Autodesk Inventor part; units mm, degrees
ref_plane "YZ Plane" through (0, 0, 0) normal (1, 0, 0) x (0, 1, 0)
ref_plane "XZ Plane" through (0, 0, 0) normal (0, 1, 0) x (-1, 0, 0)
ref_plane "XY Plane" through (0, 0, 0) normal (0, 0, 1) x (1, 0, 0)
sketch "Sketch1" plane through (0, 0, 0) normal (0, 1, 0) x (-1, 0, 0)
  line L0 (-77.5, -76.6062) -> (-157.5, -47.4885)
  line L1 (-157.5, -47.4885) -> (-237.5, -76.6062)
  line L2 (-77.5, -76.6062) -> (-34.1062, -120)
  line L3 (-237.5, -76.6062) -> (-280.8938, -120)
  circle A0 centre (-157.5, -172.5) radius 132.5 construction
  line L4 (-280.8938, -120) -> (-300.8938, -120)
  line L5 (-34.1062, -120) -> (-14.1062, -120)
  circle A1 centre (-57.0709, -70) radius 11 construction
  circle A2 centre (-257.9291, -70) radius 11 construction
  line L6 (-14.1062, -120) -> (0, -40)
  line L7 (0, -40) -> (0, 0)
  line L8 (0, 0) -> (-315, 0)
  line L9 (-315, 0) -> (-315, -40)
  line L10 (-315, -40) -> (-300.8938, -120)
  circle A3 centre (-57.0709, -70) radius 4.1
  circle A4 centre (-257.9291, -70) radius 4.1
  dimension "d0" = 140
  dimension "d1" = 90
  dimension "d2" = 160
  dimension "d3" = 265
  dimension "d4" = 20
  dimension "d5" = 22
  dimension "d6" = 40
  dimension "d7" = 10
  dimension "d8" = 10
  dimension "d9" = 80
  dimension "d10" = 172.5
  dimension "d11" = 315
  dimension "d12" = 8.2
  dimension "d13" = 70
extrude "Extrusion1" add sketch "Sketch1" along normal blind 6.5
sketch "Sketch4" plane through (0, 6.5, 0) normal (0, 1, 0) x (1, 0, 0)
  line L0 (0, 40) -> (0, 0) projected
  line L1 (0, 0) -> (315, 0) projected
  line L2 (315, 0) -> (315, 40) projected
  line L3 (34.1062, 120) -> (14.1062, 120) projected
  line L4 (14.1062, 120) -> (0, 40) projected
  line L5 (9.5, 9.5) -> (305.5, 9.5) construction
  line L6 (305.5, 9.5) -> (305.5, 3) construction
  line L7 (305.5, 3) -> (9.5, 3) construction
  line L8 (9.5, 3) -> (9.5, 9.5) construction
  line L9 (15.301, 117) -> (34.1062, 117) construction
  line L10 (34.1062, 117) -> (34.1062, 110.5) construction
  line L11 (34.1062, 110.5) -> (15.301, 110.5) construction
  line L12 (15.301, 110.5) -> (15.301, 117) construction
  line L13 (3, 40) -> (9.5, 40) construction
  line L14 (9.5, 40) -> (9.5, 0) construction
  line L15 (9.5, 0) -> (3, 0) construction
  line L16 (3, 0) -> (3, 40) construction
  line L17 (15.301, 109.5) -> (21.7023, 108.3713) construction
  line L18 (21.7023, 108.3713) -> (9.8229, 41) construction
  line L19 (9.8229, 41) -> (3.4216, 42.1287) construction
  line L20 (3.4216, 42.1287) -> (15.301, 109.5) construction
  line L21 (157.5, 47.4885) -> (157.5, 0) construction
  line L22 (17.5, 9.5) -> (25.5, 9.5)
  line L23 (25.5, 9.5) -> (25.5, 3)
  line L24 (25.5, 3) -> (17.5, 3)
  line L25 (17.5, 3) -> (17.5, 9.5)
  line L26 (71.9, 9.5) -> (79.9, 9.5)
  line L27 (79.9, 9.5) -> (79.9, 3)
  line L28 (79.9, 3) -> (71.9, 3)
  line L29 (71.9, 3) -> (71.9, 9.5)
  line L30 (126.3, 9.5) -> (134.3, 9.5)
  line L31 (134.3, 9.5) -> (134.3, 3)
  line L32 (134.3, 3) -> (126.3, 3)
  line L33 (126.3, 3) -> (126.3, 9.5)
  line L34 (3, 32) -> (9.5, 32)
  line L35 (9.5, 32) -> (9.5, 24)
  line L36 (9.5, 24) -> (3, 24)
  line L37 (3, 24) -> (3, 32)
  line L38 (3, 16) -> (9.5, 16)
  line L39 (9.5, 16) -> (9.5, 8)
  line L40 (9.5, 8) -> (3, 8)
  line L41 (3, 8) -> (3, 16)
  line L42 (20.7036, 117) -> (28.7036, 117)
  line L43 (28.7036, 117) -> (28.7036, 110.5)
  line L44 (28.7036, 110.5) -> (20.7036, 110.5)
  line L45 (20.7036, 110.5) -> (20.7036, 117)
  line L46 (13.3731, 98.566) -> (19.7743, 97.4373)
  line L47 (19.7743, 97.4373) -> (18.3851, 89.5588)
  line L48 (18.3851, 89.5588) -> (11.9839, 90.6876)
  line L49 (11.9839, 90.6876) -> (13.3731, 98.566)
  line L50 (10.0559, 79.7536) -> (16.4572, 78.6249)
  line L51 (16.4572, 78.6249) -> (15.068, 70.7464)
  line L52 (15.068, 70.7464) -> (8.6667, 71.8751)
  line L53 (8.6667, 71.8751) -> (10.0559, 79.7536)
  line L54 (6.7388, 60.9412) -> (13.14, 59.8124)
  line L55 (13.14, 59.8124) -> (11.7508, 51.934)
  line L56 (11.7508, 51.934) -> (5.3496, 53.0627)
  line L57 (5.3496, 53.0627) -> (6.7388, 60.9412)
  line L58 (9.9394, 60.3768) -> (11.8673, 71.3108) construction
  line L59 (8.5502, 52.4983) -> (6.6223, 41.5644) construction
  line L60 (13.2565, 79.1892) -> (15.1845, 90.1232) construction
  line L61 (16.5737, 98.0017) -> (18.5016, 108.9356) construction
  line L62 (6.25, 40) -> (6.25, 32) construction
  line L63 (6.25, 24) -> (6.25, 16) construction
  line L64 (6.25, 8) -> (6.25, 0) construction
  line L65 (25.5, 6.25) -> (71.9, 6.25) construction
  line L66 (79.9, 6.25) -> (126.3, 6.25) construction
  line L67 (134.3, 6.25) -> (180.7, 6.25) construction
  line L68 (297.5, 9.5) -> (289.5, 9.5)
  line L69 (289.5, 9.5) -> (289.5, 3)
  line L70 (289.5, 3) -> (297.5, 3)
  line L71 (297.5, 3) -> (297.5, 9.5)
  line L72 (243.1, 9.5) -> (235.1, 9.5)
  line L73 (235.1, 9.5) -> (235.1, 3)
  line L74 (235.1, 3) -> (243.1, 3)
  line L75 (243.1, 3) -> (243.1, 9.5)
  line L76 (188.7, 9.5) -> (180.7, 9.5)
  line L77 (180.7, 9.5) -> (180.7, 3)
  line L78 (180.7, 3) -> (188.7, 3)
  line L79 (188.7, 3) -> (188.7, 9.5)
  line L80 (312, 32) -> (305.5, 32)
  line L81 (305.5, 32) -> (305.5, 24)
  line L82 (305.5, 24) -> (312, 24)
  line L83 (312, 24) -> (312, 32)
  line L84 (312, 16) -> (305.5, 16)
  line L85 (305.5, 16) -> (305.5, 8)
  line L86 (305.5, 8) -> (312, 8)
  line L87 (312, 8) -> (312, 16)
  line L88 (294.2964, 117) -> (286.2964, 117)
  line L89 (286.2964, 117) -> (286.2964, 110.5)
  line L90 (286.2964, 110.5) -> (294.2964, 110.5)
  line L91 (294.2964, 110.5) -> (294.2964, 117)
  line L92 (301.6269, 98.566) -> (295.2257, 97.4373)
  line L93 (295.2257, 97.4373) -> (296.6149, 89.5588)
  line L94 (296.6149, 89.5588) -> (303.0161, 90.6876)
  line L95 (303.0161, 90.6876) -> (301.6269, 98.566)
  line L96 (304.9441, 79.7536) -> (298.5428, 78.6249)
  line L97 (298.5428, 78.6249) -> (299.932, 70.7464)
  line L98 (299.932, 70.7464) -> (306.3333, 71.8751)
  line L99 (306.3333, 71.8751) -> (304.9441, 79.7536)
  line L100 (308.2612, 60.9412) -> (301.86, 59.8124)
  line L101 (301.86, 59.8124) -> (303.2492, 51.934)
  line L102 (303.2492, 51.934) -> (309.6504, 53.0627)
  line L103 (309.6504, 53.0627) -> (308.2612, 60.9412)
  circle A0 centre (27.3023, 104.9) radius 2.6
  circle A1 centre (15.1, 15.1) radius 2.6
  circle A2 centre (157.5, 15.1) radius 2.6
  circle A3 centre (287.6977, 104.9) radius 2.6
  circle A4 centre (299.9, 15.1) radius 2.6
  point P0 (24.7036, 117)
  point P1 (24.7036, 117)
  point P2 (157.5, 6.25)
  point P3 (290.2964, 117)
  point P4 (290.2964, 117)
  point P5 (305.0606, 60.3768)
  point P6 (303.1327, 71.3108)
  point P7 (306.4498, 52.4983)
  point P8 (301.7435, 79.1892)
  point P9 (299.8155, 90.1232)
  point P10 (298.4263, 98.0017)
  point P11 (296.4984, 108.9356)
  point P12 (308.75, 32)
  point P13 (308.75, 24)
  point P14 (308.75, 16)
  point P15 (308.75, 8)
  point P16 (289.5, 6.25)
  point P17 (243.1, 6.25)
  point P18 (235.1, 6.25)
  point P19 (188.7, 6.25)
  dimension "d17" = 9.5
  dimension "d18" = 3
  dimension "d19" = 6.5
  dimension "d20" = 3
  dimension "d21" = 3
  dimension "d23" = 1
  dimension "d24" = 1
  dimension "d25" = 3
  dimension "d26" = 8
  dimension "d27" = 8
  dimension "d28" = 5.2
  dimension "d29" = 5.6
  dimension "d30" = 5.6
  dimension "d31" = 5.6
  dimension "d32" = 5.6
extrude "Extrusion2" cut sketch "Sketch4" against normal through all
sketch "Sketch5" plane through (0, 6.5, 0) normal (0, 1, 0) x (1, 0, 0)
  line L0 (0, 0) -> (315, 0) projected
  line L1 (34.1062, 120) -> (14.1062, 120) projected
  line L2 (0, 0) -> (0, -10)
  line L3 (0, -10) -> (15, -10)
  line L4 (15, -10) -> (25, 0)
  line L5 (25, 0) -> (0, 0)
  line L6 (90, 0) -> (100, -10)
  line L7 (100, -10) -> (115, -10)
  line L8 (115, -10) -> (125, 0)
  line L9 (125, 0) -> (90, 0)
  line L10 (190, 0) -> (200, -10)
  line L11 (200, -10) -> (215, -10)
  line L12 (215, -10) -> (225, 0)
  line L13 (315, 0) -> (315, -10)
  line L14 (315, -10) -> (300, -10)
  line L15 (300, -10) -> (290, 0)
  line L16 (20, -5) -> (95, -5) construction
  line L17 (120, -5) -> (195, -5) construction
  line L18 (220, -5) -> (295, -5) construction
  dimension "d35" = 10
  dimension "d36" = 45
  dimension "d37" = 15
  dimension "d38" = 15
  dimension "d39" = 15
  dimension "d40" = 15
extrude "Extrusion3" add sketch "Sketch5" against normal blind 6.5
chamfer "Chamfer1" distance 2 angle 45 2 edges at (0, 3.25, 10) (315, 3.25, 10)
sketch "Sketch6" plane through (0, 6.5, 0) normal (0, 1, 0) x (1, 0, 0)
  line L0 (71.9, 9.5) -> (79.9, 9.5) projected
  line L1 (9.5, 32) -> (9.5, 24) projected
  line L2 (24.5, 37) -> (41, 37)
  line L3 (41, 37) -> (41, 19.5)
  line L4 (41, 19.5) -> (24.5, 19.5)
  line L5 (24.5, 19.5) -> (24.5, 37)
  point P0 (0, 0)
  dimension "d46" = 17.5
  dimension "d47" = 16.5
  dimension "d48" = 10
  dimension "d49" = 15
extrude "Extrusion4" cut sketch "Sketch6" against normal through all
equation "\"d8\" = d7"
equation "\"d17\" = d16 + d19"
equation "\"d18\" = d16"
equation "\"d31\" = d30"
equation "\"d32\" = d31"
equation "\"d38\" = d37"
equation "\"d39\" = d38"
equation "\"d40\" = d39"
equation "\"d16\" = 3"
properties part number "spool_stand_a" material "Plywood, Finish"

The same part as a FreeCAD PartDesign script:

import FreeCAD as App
import Part
import Sketcher

V = App.Vector
Q = App.Units.Quantity


def edges_at(feature, points):
    """Names of the edges that pass closest to the given points."""
    edges = feature.Shape.Edges
    near = lambda p: min(range(len(edges)), key=lambda i: edges[i].distToShape(Part.Vertex(*p))[0])
    return sorted({f"Edge{near(p) + 1}" for p in points})


def add_polygon(sketch, points):
    """Adds a closed chain of lines whose ends are joined by coincident constraints."""
    first, n = sketch.GeometryCount, len(points)
    for a, b in zip(points, points[1:] + points[:1]):
        sketch.addGeometry(Part.LineSegment(App.Vector(*a, 0), App.Vector(*b, 0)), False)
    for i in range(n):
        sketch.addConstraint(Sketcher.Constraint("Coincident", first + i, 2, first + (i + 1) % n, 1))

doc = App.newDocument("Part")
params = doc.addObject("Spreadsheet::Sheet", "Params")
for row, (alias, value) in enumerate([
    ("sketch1_diameter", "8.2 mm"),
    ("sketch1_width", "20 mm"),
    ("sketch1_width2", "315 mm"),
    ("sketch1_height", "40 mm"),
    ("pad1_length", "6.5 mm"),
    ("sketch2_diameter", "5.2 mm"),
    ("sketch2_width", "8 mm"),
    ("sketch2_length", "8 mm"),
    ("sketch2_width2", "6.5 mm"),
    ("sketch2_length2", "6.5 mm"),
    ("sketch3_width", "15 mm"),
    ("sketch3_height", "10 mm"),
    ("pad2_length", "6.5 mm"),
    ("chamfer_size", "2 mm"),
    ("sketch4_width", "16.5 mm"),
    ("sketch4_height", "17.5 mm"),
], start=1):
    params.set(f"A{row}", alias)
    params.set(f"B{row}", "=" + value)
    params.setAlias(f"B{row}", alias)

body = doc.addObject("PartDesign::Body", "Body")

# Sketch on XZ plane
sketch1 = body.newObject("Sketcher::SketchObject", "Sketch")
sketch1.AttachmentSupport = (doc.getObject("XZ_Plane"), [""])
sketch1.MapMode = "FlatFace"
add_polygon(sketch1, [(157.5, -47.5), (77.5, -76.6), (34.1, -120), (14.1, -120), (0, -40), (0, 0), (315, 0), (315, -40), (300.9, -120), (280.9, -120), (237.5, -76.6)])  # lines 0-10
sketch1.addGeometry(Part.Circle(V(257.9, -70, 0), V(0, 0, 1), 4.1), False)  # 11
sketch1.addGeometry(Part.Circle(V(57.1, -70, 0), V(0, 0, 1), 4.1), False)  # 12
sketch1.addConstraint([
    Sketcher.Constraint("Horizontal", 2),
    Sketcher.Constraint("Vertical", 4),
    Sketcher.Constraint("Horizontal", 5),
    Sketcher.Constraint("Vertical", 6),
    Sketcher.Constraint("Horizontal", 8),
    Sketcher.Constraint("Coincident", 4, 2, -1, 1),
    Sketcher.Constraint("Equal", 11, 12),
    Sketcher.Constraint("Perpendicular", 1, 9),
    Sketcher.Constraint("Horizontal", 11, 3, 12, 3),
    Sketcher.Constraint("Horizontal", 3, 2, 6, 2),
    Sketcher.Constraint("Horizontal", 2, 2, 7, 2),
    Sketcher.Constraint("Horizontal", 0, 2, 9, 2),
    Sketcher.Constraint("Equal", 2, 8),
    Sketcher.Constraint("Equal", 3, 7),
    Sketcher.Constraint("Equal", 1, 9),
    Sketcher.Constraint("Equal", 0, 10),
    Sketcher.Constraint("Diameter", 11, 8.2),
    Sketcher.Constraint("DistanceX", 2, 2, 2, 1, 20.0),
    Sketcher.Constraint("DistanceX", 5, 1, 5, 2, 315.0),
    Sketcher.Constraint("DistanceY", 4, 1, 4, 2, 40.0),
    Sketcher.Constraint("Angle", 0, Q("-160 deg")),
    Sketcher.Constraint("DistanceY", 11, 3, -1, 1, 70.0),
    Sketcher.Constraint("DistanceY", 2, 2, 3, 2, 80.0),
    Sketcher.Constraint("DistanceX", 0, 2, 10, 2, 80.0),
    Sketcher.Constraint("Angle", 3, Q("100 deg")),
    Sketcher.Constraint("DistanceX", -1, 1, 11, 3, 257.929),
    Sketcher.Constraint("DistanceX", -1, 1, 12, 3, 57.071),
])
sketch1.setExpression("Constraints[27]", "Params.sketch1_diameter")
sketch1.setExpression("Constraints[28]", "Params.sketch1_width")
sketch1.setExpression("Constraints[29]", "Params.sketch1_width2")
sketch1.setExpression("Constraints[30]", "Params.sketch1_height")
pad1 = body.newObject("PartDesign::Pad", "Pad")
pad1.Profile = sketch1
pad1.setExpression("Length", "Params.pad1_length")
pad1.Reversed = True

# Sketch on XZ plane
sketch2 = body.newObject("Sketcher::SketchObject", "Sketch001")
sketch2.AttachmentSupport = (doc.getObject("XZ_Plane"), [""])
sketch2.MapMode = "FlatFace"
sketch2.AttachmentOffset = App.Placement(V(0, 0, -6.5), App.Rotation())
add_polygon(sketch2, [(25.5, -9.5), (17.5, -9.5), (17.5, -3), (25.5, -3)])  # lines 0-3
add_polygon(sketch2, [(79.9, -9.5), (71.9, -9.5), (71.9, -3), (79.9, -3)])  # lines 4-7
add_polygon(sketch2, [(134.3, -9.5), (126.3, -9.5), (126.3, -3), (134.3, -3)])  # lines 8-11
add_polygon(sketch2, [(9.5, -32), (3, -32), (3, -24), (9.5, -24)])  # lines 12-15
add_polygon(sketch2, [(9.5, -16), (3, -16), (3, -8), (9.5, -8)])  # lines 16-19
add_polygon(sketch2, [(28.7, -117), (20.7, -117), (20.7, -110.5), (28.7, -110.5)])  # lines 20-23
add_polygon(sketch2, [(19.8, -97.4), (13.4, -98.6), (12, -90.7), (18.4, -89.6)])  # lines 24-27
add_polygon(sketch2, [(16.5, -78.6), (10.1, -79.8), (8.7, -71.9), (15.1, -70.7)])  # lines 28-31
add_polygon(sketch2, [(13.1, -59.8), (6.7, -60.9), (5.3, -53.1), (11.8, -51.9)])  # lines 32-35
add_polygon(sketch2, [(297.5, -3), (297.5, -9.5), (289.5, -9.5), (289.5, -3)])  # lines 36-39
add_polygon(sketch2, [(243.1, -3), (243.1, -9.5), (235.1, -9.5), (235.1, -3)])  # lines 40-43
add_polygon(sketch2, [(188.7, -3), (188.7, -9.5), (180.7, -9.5), (180.7, -3)])  # lines 44-47
add_polygon(sketch2, [(312, -24), (312, -32), (305.5, -32), (305.5, -24)])  # lines 48-51
add_polygon(sketch2, [(312, -8), (312, -16), (305.5, -16), (305.5, -8)])  # lines 52-55
add_polygon(sketch2, [(294.3, -110.5), (294.3, -117), (286.3, -117), (286.3, -110.5)])  # lines 56-59
add_polygon(sketch2, [(303, -90.7), (301.6, -98.6), (295.2, -97.4), (296.6, -89.6)])  # lines 60-63
add_polygon(sketch2, [(306.3, -71.9), (304.9, -79.8), (298.5, -78.6), (299.9, -70.7)])  # lines 64-67
add_polygon(sketch2, [(309.7, -53.1), (308.3, -60.9), (301.9, -59.8), (303.2, -51.9)])  # lines 68-71
sketch2.addGeometry(Part.Circle(V(27.3, -104.9, 0), V(0, 0, 1), 2.6), False)  # 72
sketch2.addGeometry(Part.Circle(V(15.1, -15.1, 0), V(0, 0, 1), 2.6), False)  # 73
sketch2.addGeometry(Part.Circle(V(157.5, -15.1, 0), V(0, 0, 1), 2.6), False)  # 74
sketch2.addGeometry(Part.Circle(V(287.7, -104.9, 0), V(0, 0, 1), 2.6), False)  # 75
sketch2.addGeometry(Part.Circle(V(299.9, -15.1, 0), V(0, 0, 1), 2.6), False)  # 76
sketch2.addConstraint([
    Sketcher.Constraint("Horizontal", 0),
    Sketcher.Constraint("Vertical", 1),
    Sketcher.Constraint("Horizontal", 2),
    Sketcher.Constraint("Vertical", 3),
    Sketcher.Constraint("Horizontal", 4),
    Sketcher.Constraint("Vertical", 5),
    Sketcher.Constraint("Horizontal", 6),
    Sketcher.Constraint("Vertical", 7),
    Sketcher.Constraint("Horizontal", 8),
    Sketcher.Constraint("Vertical", 9),
    Sketcher.Constraint("Horizontal", 10),
    Sketcher.Constraint("Vertical", 11),
    Sketcher.Constraint("Horizontal", 12),
    Sketcher.Constraint("Vertical", 13),
    Sketcher.Constraint("Horizontal", 14),
    Sketcher.Constraint("Vertical", 15),
    Sketcher.Constraint("Horizontal", 16),
    Sketcher.Constraint("Vertical", 17),
    Sketcher.Constraint("Horizontal", 18),
    Sketcher.Constraint("Vertical", 19),
    Sketcher.Constraint("Horizontal", 20),
    Sketcher.Constraint("Vertical", 21),
    Sketcher.Constraint("Horizontal", 22),
    Sketcher.Constraint("Vertical", 23),
    Sketcher.Constraint("Vertical", 36),
    Sketcher.Constraint("Horizontal", 37),
    Sketcher.Constraint("Vertical", 38),
    Sketcher.Constraint("Horizontal", 39),
    Sketcher.Constraint("Vertical", 40),
    Sketcher.Constraint("Horizontal", 41),
    Sketcher.Constraint("Vertical", 42),
    Sketcher.Constraint("Horizontal", 43),
    Sketcher.Constraint("Vertical", 44),
    Sketcher.Constraint("Horizontal", 45),
    Sketcher.Constraint("Vertical", 46),
    Sketcher.Constraint("Horizontal", 47),
    Sketcher.Constraint("Vertical", 48),
    Sketcher.Constraint("Horizontal", 49),
    Sketcher.Constraint("Vertical", 50),
    Sketcher.Constraint("Horizontal", 51),
    Sketcher.Constraint("Vertical", 52),
    Sketcher.Constraint("Horizontal", 53),
    Sketcher.Constraint("Vertical", 54),
    Sketcher.Constraint("Horizontal", 55),
    Sketcher.Constraint("Vertical", 56),
    Sketcher.Constraint("Horizontal", 57),
    Sketcher.Constraint("Vertical", 58),
    Sketcher.Constraint("Horizontal", 59),
    Sketcher.Constraint("Equal", 72, 73),
    Sketcher.Constraint("Equal", 73, 74),
    Sketcher.Constraint("Equal", 74, 75),
    Sketcher.Constraint("Equal", 75, 76),
    Sketcher.Constraint("Perpendicular", 24, 25),
    Sketcher.Constraint("Perpendicular", 25, 26),
    Sketcher.Constraint("Perpendicular", 26, 27),
    Sketcher.Constraint("Perpendicular", 27, 28),
    Sketcher.Constraint("Perpendicular", 28, 29),
    Sketcher.Constraint("Perpendicular", 29, 30),
    Sketcher.Constraint("Perpendicular", 30, 31),
    Sketcher.Constraint("Perpendicular", 31, 32),
    Sketcher.Constraint("Perpendicular", 32, 33),
    Sketcher.Constraint("Perpendicular", 33, 34),
    Sketcher.Constraint("Perpendicular", 34, 35),
    Sketcher.Constraint("Perpendicular", 60, 61),
    Sketcher.Constraint("Perpendicular", 61, 62),
    Sketcher.Constraint("Perpendicular", 62, 63),
    Sketcher.Constraint("Perpendicular", 63, 64),
    Sketcher.Constraint("Perpendicular", 64, 65),
    Sketcher.Constraint("Perpendicular", 65, 66),
    Sketcher.Constraint("Perpendicular", 66, 67),
    Sketcher.Constraint("Perpendicular", 67, 68),
    Sketcher.Constraint("Perpendicular", 68, 69),
    Sketcher.Constraint("Perpendicular", 69, 70),
    Sketcher.Constraint("Perpendicular", 70, 71),
    Sketcher.Constraint("Horizontal", 73, 3, 74, 3),
    Sketcher.Constraint("Horizontal", 72, 3, 75, 3),
    Sketcher.Constraint("Horizontal", 74, 3, 76, 3),
    Sketcher.Constraint("Horizontal", 3, 2, 4, 2),
    Sketcher.Constraint("Horizontal", 2, 2, 5, 2),
    Sketcher.Constraint("Horizontal", 7, 2, 8, 2),
    Sketcher.Constraint("Horizontal", 6, 2, 9, 2),
    Sketcher.Constraint("Horizontal", 11, 2, 36, 2),
    Sketcher.Constraint("Horizontal", 10, 2, 38, 2),
    Sketcher.Constraint("Horizontal", 37, 2, 40, 2),
    Sketcher.Constraint("Horizontal", 39, 2, 42, 2),
    Sketcher.Constraint("Horizontal", 41, 2, 44, 2),
    Sketcher.Constraint("Horizontal", 43, 2, 46, 2),
    Sketcher.Constraint("Horizontal", 15, 2, 48, 2),
    Sketcher.Constraint("Horizontal", 14, 2, 50, 2),
    Sketcher.Constraint("Horizontal", 19, 2, 52, 2),
    Sketcher.Constraint("Horizontal", 18, 2, 54, 2),
    Sketcher.Constraint("Horizontal", 23, 2, 56, 2),
    Sketcher.Constraint("Horizontal", 22, 2, 58, 2),
    Sketcher.Constraint("Horizontal", 24, 2, 60, 2),
    Sketcher.Constraint("Horizontal", 27, 2, 61, 2),
    Sketcher.Constraint("Horizontal", 26, 2, 62, 2),
    Sketcher.Constraint("Horizontal", 28, 2, 64, 2),
    Sketcher.Constraint("Horizontal", 31, 2, 65, 2),
    Sketcher.Constraint("Horizontal", 30, 2, 66, 2),
    Sketcher.Constraint("Horizontal", 32, 2, 68, 2),
    Sketcher.Constraint("Horizontal", 35, 2, 69, 2),
    Sketcher.Constraint("Horizontal", 34, 2, 70, 2),
    Sketcher.Constraint("Vertical", 13, 2, 16, 2),
    Sketcher.Constraint("Vertical", 15, 2, 18, 2),
    Sketcher.Constraint("Vertical", 51, 2, 52, 2),
    Sketcher.Constraint("Vertical", 50, 2, 53, 2),
    Sketcher.Constraint("Equal", 2, 4),
    Sketcher.Constraint("Equal", 6, 8),
    Sketcher.Constraint("Equal", 10, 20),
    Sketcher.Constraint("Equal", 22, 37),
    Sketcher.Constraint("Equal", 39, 41),
    Sketcher.Constraint("Equal", 43, 45),
    Sketcher.Constraint("Equal", 18, 49),
    Sketcher.Constraint("Equal", 47, 57),
    Sketcher.Constraint("Equal", 55, 1),
    Sketcher.Constraint("Equal", 59, 13),
    Sketcher.Constraint("Equal", 15, 17),
    Sketcher.Constraint("Equal", 11, 21),
    Sketcher.Constraint("Equal", 26, 28),
    Sketcher.Constraint("Equal", 27, 29),
    Sketcher.Constraint("Equal", 30, 32),
    Sketcher.Constraint("Equal", 31, 33),
    Sketcher.Constraint("Equal", 35, 60),
    Sketcher.Constraint("Diameter", 72, 5.2),
    Sketcher.Constraint("DistanceX", 0, 2, 0, 1, 8.0),
    Sketcher.Constraint("Distance", 25, 8.0),
    Sketcher.Constraint("DistanceX", 12, 2, 12, 1, 6.5),
    Sketcher.Constraint("DistanceY", 1, 2, -1, 1, 3.0),
    Sketcher.Constraint("DistanceX", -1, 1, 12, 2, 3.0),
    Sketcher.Constraint("DistanceY", 17, 2, -1, 1, 8.0),
    Sketcher.Constraint("Distance", 24, 6.5),
    Sketcher.Constraint("Angle", 24, Q("-170 deg")),
    Sketcher.Constraint("DistanceY", 12, 2, -1, 1, 32.0),
    Sketcher.Constraint("DistanceY", 20, 2, -1, 1, 117.0),
    Sketcher.Constraint("DistanceX", -1, 1, 48, 2, 312.0),
    Sketcher.Constraint("DistanceY", 72, 3, -1, 1, 104.9),
    Sketcher.Constraint("DistanceX", -1, 1, 73, 3, 15.1),
    Sketcher.Constraint("DistanceY", 73, 3, -1, 1, 15.1),
    Sketcher.Constraint("DistanceX", -1, 1, 74, 3, 157.5),
    Sketcher.Constraint("DistanceX", -1, 1, 76, 3, 299.9),
    Sketcher.Constraint("DistanceX", -1, 1, 0, 2, 17.5),
    Sketcher.Constraint("DistanceX", -1, 1, 4, 2, 71.9),
    Sketcher.Constraint("DistanceX", -1, 1, 8, 2, 126.3),
    Sketcher.Constraint("DistanceX", -1, 1, 36, 2, 297.5),
    Sketcher.Constraint("DistanceX", -1, 1, 40, 2, 243.1),
    Sketcher.Constraint("DistanceX", -1, 1, 44, 2, 188.7),
    Sketcher.Constraint("DistanceX", -1, 1, 35, 2, 13.14),
    Sketcher.Constraint("DistanceX", -1, 1, 69, 2, 301.86),
    Sketcher.Constraint("DistanceX", -1, 1, 24, 2, 13.373),
    Sketcher.Constraint("DistanceY", 24, 2, -1, 1, 98.566),
    Sketcher.Constraint("DistanceX", -1, 1, 28, 2, 10.056),
    Sketcher.Constraint("DistanceY", 29, 2, -1, 1, 71.875),
    Sketcher.Constraint("DistanceY", 34, 2, -1, 1, 51.934),
    Sketcher.Constraint("DistanceX", -1, 1, 60, 2, 301.627),
    Sketcher.Constraint("DistanceX", -1, 1, 64, 2, 304.944),
    Sketcher.Constraint("DistanceX", -1, 1, 72, 3, 27.3023),
    Sketcher.Constraint("DistanceX", -1, 1, 75, 3, 287.6977),
    Sketcher.Constraint("DistanceX", -1, 1, 20, 2, 20.7036),
    Sketcher.Constraint("DistanceX", -1, 1, 56, 2, 294.2964),
])
sketch2.setExpression("Constraints[195]", "Params.sketch2_diameter")
sketch2.setExpression("Constraints[196]", "Params.sketch2_width")
sketch2.setExpression("Constraints[197]", "Params.sketch2_length")
sketch2.setExpression("Constraints[198]", "Params.sketch2_width2")
sketch2.setExpression("Constraints[202]", "Params.sketch2_length2")
pocket1 = body.newObject("PartDesign::Pocket", "Pocket")
pocket1.Profile = sketch2
pocket1.Type = "ThroughAll"
pocket1.Reversed = True

# Sketch on XZ plane
sketch3 = body.newObject("Sketcher::SketchObject", "Sketch002")
sketch3.AttachmentSupport = (doc.getObject("XZ_Plane"), [""])
sketch3.MapMode = "FlatFace"
sketch3.AttachmentOffset = App.Placement(V(0, 0, -6.5), App.Rotation())
add_polygon(sketch3, [(315, 0), (290, 0), (300, 10), (315, 10)])  # lines 0-3
add_polygon(sketch3, [(225, 0), (190, 0), (200, 10), (215, 10)])  # lines 4-7
add_polygon(sketch3, [(125, 0), (90, 0), (100, 10), (115, 10)])  # lines 8-11
add_polygon(sketch3, [(25, 0), (0, 0), (0, 10), (15, 10)])  # lines 12-15
sketch3.addConstraint([
    Sketcher.Constraint("Horizontal", 0),
    Sketcher.Constraint("Horizontal", 2),
    Sketcher.Constraint("Vertical", 3),
    Sketcher.Constraint("Horizontal", 4),
    Sketcher.Constraint("Horizontal", 6),
    Sketcher.Constraint("Horizontal", 8),
    Sketcher.Constraint("Horizontal", 10),
    Sketcher.Constraint("Horizontal", 12),
    Sketcher.Constraint("Vertical", 13),
    Sketcher.Constraint("Horizontal", 14),
    Sketcher.Constraint("Coincident", 12, 2, -1, 1),
    Sketcher.Constraint("PointOnObject", 0, 2, -1),
    Sketcher.Constraint("PointOnObject", 4, 2, -1),
    Sketcher.Constraint("PointOnObject", 8, 2, -1),
    Sketcher.Constraint("Parallel", 1, 5),
    Sketcher.Constraint("Perpendicular", 5, 7),
    Sketcher.Constraint("Perpendicular", 7, 9),
    Sketcher.Constraint("Perpendicular", 9, 11),
    Sketcher.Constraint("Parallel", 11, 15),
    Sketcher.Constraint("Horizontal", 2, 2, 5, 2),
    Sketcher.Constraint("Horizontal", 6, 2, 9, 2),
    Sketcher.Constraint("Horizontal", 10, 2, 13, 2),
    Sketcher.Constraint("Equal", 2, 6),
    Sketcher.Constraint("Equal", 4, 8),
    Sketcher.Constraint("Equal", 0, 12),
    Sketcher.Constraint("Equal", 10, 14),
    Sketcher.Constraint("DistanceX", 2, 1, 2, 2, 15.0),
    Sketcher.Constraint("DistanceY", 3, 2, 3, 1, 10.0),
    Sketcher.Constraint("DistanceX", -1, 1, 0, 2, 290.0),
    Sketcher.Constraint("DistanceX", -1, 1, 4, 2, 190.0),
    Sketcher.Constraint("DistanceX", -1, 1, 8, 2, 90.0),
])
sketch3.setExpression("Constraints[42]", "Params.sketch3_width")
sketch3.setExpression("Constraints[43]", "Params.sketch3_height")
pad2 = body.newObject("PartDesign::Pad", "Pad001")
pad2.Profile = sketch3
pad2.setExpression("Length", "Params.pad2_length")
doc.recompute()

chamfer = body.newObject("PartDesign::Chamfer", "Chamfer")
chamfer.Base = (pad2, edges_at(pad2, [(0, 3.25, 10), (315, 3.25, 10)]))
chamfer.setExpression("Size", "Params.chamfer_size")

# Sketch on XZ plane
sketch4 = body.newObject("Sketcher::SketchObject", "Sketch003")
sketch4.AttachmentSupport = (doc.getObject("XZ_Plane"), [""])
sketch4.MapMode = "FlatFace"
sketch4.AttachmentOffset = App.Placement(V(0, 0, -6.5), App.Rotation())
add_polygon(sketch4, [(41, -37), (24, -37), (24, -20), (41, -20)])  # lines 0-3
sketch4.addConstraint([
    Sketcher.Constraint("Horizontal", 0),
    Sketcher.Constraint("Vertical", 1),
    Sketcher.Constraint("Horizontal", 2),
    Sketcher.Constraint("Vertical", 3),
    Sketcher.Constraint("DistanceX", 0, 2, 0, 1, 16.5),
    Sketcher.Constraint("DistanceY", 1, 1, 1, 2, 17.5),
    Sketcher.Constraint("DistanceY", 0, 2, -1, 1, 37.0),
    Sketcher.Constraint("DistanceX", -1, 1, 2, 2, 41.0),
])
sketch4.setExpression("Constraints[8]", "Params.sketch4_width")
sketch4.setExpression("Constraints[9]", "Params.sketch4_height")
pocket2 = body.newObject("PartDesign::Pocket", "Pocket001")
pocket2.Profile = sketch4
pocket2.Type = "ThroughAll"
pocket2.Reversed = True

doc.recompute()
